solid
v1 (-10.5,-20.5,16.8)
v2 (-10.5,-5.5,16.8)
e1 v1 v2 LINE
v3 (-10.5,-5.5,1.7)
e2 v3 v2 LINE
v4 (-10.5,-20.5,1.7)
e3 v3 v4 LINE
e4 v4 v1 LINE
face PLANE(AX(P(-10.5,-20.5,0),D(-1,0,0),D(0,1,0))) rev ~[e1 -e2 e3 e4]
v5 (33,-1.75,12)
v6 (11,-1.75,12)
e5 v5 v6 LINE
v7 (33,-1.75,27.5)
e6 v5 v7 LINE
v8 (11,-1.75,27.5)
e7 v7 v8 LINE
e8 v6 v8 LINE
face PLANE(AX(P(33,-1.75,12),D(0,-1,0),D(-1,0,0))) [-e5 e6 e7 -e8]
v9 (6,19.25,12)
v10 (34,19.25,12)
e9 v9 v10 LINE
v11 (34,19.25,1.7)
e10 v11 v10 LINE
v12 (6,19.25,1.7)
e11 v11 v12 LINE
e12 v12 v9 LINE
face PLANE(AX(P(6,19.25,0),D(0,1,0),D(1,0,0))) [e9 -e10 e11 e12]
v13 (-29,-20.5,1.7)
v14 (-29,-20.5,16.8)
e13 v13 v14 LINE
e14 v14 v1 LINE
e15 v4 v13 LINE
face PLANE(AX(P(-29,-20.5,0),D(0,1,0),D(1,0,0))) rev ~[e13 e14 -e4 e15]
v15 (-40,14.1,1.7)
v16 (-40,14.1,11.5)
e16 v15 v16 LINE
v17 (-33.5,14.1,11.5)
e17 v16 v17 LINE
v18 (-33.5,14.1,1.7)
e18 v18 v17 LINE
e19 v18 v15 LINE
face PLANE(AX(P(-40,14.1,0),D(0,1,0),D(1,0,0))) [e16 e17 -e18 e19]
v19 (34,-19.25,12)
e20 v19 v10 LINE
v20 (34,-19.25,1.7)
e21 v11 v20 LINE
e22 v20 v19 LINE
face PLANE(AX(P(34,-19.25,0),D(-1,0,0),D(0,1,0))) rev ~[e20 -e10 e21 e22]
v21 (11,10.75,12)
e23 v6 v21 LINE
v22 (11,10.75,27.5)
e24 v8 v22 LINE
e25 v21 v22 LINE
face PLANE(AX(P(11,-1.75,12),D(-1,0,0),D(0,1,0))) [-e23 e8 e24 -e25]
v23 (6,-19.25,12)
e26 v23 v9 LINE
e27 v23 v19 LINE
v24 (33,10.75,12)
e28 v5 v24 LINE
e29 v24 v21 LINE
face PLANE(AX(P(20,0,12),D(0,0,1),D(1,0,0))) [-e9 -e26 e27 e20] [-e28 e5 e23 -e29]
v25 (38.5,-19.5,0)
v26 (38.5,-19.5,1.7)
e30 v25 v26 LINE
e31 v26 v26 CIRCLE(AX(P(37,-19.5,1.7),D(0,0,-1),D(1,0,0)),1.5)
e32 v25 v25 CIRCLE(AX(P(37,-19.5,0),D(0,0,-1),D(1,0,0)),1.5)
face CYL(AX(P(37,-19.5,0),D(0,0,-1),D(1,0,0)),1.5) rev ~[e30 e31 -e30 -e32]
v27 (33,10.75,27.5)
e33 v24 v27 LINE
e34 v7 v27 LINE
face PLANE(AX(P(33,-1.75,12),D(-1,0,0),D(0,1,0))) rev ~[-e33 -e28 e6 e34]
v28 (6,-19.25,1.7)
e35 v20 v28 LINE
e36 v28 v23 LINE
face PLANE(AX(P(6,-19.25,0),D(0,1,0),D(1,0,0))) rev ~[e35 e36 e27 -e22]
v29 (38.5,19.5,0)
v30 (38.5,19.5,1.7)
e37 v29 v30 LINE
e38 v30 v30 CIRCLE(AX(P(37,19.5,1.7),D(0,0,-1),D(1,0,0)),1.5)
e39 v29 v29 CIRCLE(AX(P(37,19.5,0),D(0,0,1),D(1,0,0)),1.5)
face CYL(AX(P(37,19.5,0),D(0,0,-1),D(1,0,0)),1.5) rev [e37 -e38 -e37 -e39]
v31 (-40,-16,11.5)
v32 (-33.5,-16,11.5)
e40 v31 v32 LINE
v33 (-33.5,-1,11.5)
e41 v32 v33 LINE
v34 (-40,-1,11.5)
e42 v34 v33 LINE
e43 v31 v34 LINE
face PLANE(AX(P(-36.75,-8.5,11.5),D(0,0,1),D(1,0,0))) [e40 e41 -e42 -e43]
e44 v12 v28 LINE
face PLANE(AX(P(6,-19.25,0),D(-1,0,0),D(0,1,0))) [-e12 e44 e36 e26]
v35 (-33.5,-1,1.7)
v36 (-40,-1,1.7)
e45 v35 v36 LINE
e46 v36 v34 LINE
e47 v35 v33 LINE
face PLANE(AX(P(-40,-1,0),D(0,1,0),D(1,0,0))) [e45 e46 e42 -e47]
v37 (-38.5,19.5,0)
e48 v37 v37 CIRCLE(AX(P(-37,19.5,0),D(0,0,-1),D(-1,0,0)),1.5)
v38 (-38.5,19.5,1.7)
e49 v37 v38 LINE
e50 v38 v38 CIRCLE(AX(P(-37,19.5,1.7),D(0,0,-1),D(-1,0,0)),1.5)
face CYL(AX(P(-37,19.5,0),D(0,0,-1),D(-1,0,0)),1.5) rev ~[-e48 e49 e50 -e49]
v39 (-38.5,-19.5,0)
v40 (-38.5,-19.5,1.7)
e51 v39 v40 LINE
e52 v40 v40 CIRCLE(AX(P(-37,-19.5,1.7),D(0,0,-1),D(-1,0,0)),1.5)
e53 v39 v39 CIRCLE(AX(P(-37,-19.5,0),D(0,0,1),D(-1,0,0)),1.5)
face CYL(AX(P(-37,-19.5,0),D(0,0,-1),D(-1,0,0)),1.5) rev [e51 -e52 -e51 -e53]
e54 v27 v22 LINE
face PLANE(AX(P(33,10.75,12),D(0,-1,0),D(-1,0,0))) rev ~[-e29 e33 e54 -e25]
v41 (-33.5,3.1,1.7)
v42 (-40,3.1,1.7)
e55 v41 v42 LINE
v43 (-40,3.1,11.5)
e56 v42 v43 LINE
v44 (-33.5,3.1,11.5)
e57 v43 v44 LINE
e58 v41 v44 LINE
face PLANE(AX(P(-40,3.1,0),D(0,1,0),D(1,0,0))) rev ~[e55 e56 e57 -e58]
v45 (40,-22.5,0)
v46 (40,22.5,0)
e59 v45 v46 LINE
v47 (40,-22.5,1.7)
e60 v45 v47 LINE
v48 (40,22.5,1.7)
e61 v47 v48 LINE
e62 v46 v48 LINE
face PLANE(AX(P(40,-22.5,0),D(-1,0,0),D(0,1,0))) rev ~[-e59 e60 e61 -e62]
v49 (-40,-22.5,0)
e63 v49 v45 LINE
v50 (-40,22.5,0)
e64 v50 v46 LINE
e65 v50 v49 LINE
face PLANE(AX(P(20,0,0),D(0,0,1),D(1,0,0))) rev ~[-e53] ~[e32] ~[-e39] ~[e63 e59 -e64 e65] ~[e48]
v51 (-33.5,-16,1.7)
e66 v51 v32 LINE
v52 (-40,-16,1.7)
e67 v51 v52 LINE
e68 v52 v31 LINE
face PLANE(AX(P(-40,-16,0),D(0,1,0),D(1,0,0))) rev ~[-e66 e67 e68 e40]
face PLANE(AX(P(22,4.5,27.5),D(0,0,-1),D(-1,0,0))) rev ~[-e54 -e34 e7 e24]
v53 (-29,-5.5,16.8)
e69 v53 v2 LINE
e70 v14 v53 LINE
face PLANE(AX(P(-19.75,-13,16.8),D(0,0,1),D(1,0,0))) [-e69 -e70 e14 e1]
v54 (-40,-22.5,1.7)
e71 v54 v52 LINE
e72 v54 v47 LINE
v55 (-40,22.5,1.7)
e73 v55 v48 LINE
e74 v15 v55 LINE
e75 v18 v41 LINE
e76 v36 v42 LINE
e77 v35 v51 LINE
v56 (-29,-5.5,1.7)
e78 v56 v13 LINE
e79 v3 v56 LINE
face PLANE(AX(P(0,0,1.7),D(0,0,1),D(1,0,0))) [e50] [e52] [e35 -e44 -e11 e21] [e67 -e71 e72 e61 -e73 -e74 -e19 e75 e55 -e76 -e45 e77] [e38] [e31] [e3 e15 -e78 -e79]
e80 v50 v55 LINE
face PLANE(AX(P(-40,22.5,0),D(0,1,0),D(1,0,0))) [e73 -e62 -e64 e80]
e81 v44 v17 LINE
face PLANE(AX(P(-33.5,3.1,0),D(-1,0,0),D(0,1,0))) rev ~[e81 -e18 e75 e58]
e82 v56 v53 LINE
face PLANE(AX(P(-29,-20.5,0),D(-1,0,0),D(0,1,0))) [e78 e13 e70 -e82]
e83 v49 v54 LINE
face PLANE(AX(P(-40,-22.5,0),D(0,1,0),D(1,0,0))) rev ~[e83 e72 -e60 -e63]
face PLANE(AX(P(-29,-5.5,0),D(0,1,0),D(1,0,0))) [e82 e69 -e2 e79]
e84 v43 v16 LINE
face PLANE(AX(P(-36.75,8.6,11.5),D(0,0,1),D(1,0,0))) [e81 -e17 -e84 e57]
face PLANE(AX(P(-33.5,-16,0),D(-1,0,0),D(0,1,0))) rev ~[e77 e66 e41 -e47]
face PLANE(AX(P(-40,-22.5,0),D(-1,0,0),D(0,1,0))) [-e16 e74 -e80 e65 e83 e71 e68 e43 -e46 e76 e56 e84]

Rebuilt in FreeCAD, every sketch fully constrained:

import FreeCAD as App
import Part
import Sketcher

V = App.Vector
Q = App.Units.Quantity

doc = App.newDocument("Part")
body = doc.addObject("PartDesign::Body", "Body")

# Sketch on XY plane
sketch1 = body.newObject("Sketcher::SketchObject", "Sketch")
sketch1.AttachmentSupport = (doc.getObject("XY_Plane"), [""])
sketch1.MapMode = "FlatFace"
sketch1.addGeometry(Part.LineSegment(V(-40, 22, 0), V(-40, -22, 0)), False)
sketch1.addGeometry(Part.LineSegment(V(-40, -22, 0), V(40, -22, 0)), False)
sketch1.addGeometry(Part.LineSegment(V(40, -22, 0), V(40, 22, 0)), False)
sketch1.addGeometry(Part.LineSegment(V(40, 22, 0), V(-40, 22, 0)), False)
sketch1.addConstraint(Sketcher.Constraint("Coincident", 0, 2, 1, 1))
sketch1.addConstraint(Sketcher.Constraint("Coincident", 1, 2, 2, 1))
sketch1.addConstraint(Sketcher.Constraint("Coincident", 2, 2, 3, 1))
sketch1.addConstraint(Sketcher.Constraint("Coincident", 3, 2, 0, 1))
sketch1.addConstraint(Sketcher.Constraint("Vertical", 0))
sketch1.addConstraint(Sketcher.Constraint("Horizontal", 1))
sketch1.addConstraint(Sketcher.Constraint("Vertical", 2))
sketch1.addConstraint(Sketcher.Constraint("Horizontal", 3))
sketch1.addConstraint(Sketcher.Constraint("Symmetric", 0, 2, 2, 2, -1, 1))
sketch1.addConstraint(Sketcher.Constraint("DistanceX", 1, 1, 1, 2, Q("80 mm")))
sketch1.addConstraint(Sketcher.Constraint("DistanceY", 0, 2, 0, 1, Q("45 mm")))
pad1 = body.newObject("PartDesign::Pad", "Pad")
pad1.Profile = sketch1
pad1.Length = 1.7

# Sketch on XY plane
sketch2 = body.newObject("Sketcher::SketchObject", "Sketch001")
sketch2.AttachmentSupport = (doc.getObject("XY_Plane"), [""])
sketch2.MapMode = "FlatFace"
sketch2.addGeometry(Part.LineSegment(V(-40, 14, 0), V(-40, 3, 0)), False)
sketch2.addGeometry(Part.LineSegment(V(-40, 3, 0), V(-34, 3, 0)), False)
sketch2.addGeometry(Part.LineSegment(V(-34, 3, 0), V(-34, 14, 0)), False)
sketch2.addGeometry(Part.LineSegment(V(-34, 14, 0), V(-40, 14, 0)), False)
sketch2.addConstraint(Sketcher.Constraint("Coincident", 0, 2, 1, 1))
sketch2.addConstraint(Sketcher.Constraint("Coincident", 1, 2, 2, 1))
sketch2.addConstraint(Sketcher.Constraint("Coincident", 2, 2, 3, 1))
sketch2.addConstraint(Sketcher.Constraint("Coincident", 3, 2, 0, 1))
sketch2.addConstraint(Sketcher.Constraint("Vertical", 0))
sketch2.addConstraint(Sketcher.Constraint("Horizontal", 1))
sketch2.addConstraint(Sketcher.Constraint("Vertical", 2))
sketch2.addConstraint(Sketcher.Constraint("Horizontal", 3))
sketch2.addConstraint(Sketcher.Constraint("DistanceY", 0, 2, 0, 1, Q("11 mm")))
sketch2.addConstraint(Sketcher.Constraint("DistanceX", 1, 1, 1, 2, Q("6.5 mm")))
sketch2.addConstraint(Sketcher.Constraint("DistanceX", 0, 2, -1, 1, Q("40 mm")))
sketch2.addConstraint(Sketcher.Constraint("DistanceY", -1, 1, 0, 2, Q("3.1 mm")))
pad2 = body.newObject("PartDesign::Pad", "Pad001")
pad2.Profile = sketch2
pad2.Length = 11.5

# Sketch on XY plane
sketch3 = body.newObject("Sketcher::SketchObject", "Sketch002")
sketch3.AttachmentSupport = (doc.getObject("XY_Plane"), [""])
sketch3.MapMode = "FlatFace"
sketch3.addGeometry(Part.LineSegment(V(-40, -1, 0), V(-40, -16, 0)), False)
sketch3.addGeometry(Part.LineSegment(V(-40, -16, 0), V(-34, -16, 0)), False)
sketch3.addGeometry(Part.LineSegment(V(-34, -16, 0), V(-34, -1, 0)), False)
sketch3.addGeometry(Part.LineSegment(V(-34, -1, 0), V(-40, -1, 0)), False)
sketch3.addConstraint(Sketcher.Constraint("Coincident", 0, 2, 1, 1))
sketch3.addConstraint(Sketcher.Constraint("Coincident", 1, 2, 2, 1))
sketch3.addConstraint(Sketcher.Constraint("Coincident", 2, 2, 3, 1))
sketch3.addConstraint(Sketcher.Constraint("Coincident", 3, 2, 0, 1))
sketch3.addConstraint(Sketcher.Constraint("Vertical", 0))
sketch3.addConstraint(Sketcher.Constraint("Horizontal", 1))
sketch3.addConstraint(Sketcher.Constraint("Vertical", 2))
sketch3.addConstraint(Sketcher.Constraint("Horizontal", 3))
sketch3.addConstraint(Sketcher.Constraint("DistanceY", 0, 2, 0, 1, Q("15 mm")))
sketch3.addConstraint(Sketcher.Constraint("DistanceX", 1, 1, 1, 2, Q("6.5 mm")))
sketch3.addConstraint(Sketcher.Constraint("DistanceX", 0, 2, -1, 1, Q("40 mm")))
sketch3.addConstraint(Sketcher.Constraint("DistanceY", 0, 2, -1, 1, Q("16 mm")))
pad3 = body.newObject("PartDesign::Pad", "Pad002")
pad3.Profile = sketch3
pad3.Length = 11.5

# Sketch on XY plane
sketch4 = body.newObject("Sketcher::SketchObject", "Sketch003")
sketch4.AttachmentSupport = (doc.getObject("XY_Plane"), [""])
sketch4.MapMode = "FlatFace"
sketch4.addGeometry(Part.LineSegment(V(-29, -6, 0), V(-29, -20, 0)), False)
sketch4.addGeometry(Part.LineSegment(V(-29, -20, 0), V(-10, -20, 0)), False)
sketch4.addGeometry(Part.LineSegment(V(-10, -20, 0), V(-10, -6, 0)), False)
sketch4.addGeometry(Part.LineSegment(V(-10, -6, 0), V(-29, -6, 0)), False)
sketch4.addConstraint(Sketcher.Constraint("Coincident", 0, 2, 1, 1))
sketch4.addConstraint(Sketcher.Constraint("Coincident", 1, 2, 2, 1))
sketch4.addConstraint(Sketcher.Constraint("Coincident", 2, 2, 3, 1))
sketch4.addConstraint(Sketcher.Constraint("Coincident", 3, 2, 0, 1))
sketch4.addConstraint(Sketcher.Constraint("Vertical", 0))
sketch4.addConstraint(Sketcher.Constraint("Horizontal", 1))
sketch4.addConstraint(Sketcher.Constraint("Vertical", 2))
sketch4.addConstraint(Sketcher.Constraint("Horizontal", 3))
sketch4.addConstraint(Sketcher.Constraint("DistanceY", 0, 2, 0, 1, Q("15 mm")))
sketch4.addConstraint(Sketcher.Constraint("DistanceX", 1, 1, 1, 2, Q("18.5 mm")))
sketch4.addConstraint(Sketcher.Constraint("DistanceX", 0, 2, -1, 1, Q("29 mm")))
sketch4.addConstraint(Sketcher.Constraint("DistanceY", 0, 2, -1, 1, Q("20.5 mm")))
pad4 = body.newObject("PartDesign::Pad", "Pad003")
pad4.Profile = sketch4
pad4.Length = 16.8

# Sketch on XY plane
sketch5 = body.newObject("Sketcher::SketchObject", "Sketch004")
sketch5.AttachmentSupport = (doc.getObject("XY_Plane"), [""])
sketch5.MapMode = "FlatFace"
sketch5.addGeometry(Part.Circle(V(37, 19.5, 0), V(0, 0, 1), 1.5), False)
sketch5.addConstraint(Sketcher.Constraint("Diameter", 0, Q("3 mm")))
sketch5.addConstraint(Sketcher.Constraint("DistanceX", -1, 1, 0, 3, Q("37 mm")))
sketch5.addConstraint(Sketcher.Constraint("DistanceY", -1, 1, 0, 3, Q("19.5 mm")))
pocket1 = body.newObject("PartDesign::Pocket", "Pocket")
pocket1.Profile = sketch5
pocket1.Length = 10
pocket1.Reversed = True

# Sketch on XY plane
sketch6 = body.newObject("Sketcher::SketchObject", "Sketch005")
sketch6.AttachmentSupport = (doc.getObject("XY_Plane"), [""])
sketch6.MapMode = "FlatFace"
sketch6.addGeometry(Part.Circle(V(-37, 19.5, 0), V(0, 0, 1), 1.5), False)
sketch6.addConstraint(Sketcher.Constraint("Diameter", 0, Q("3 mm")))
sketch6.addConstraint(Sketcher.Constraint("DistanceX", 0, 3, -1, 1, Q("37 mm")))
sketch6.addConstraint(Sketcher.Constraint("DistanceY", -1, 1, 0, 3, Q("19.5 mm")))
pocket2 = body.newObject("PartDesign::Pocket", "Pocket001")
pocket2.Profile = sketch6
pocket2.Length = 10
pocket2.Reversed = True
doc.recompute()

mirrored = body.newObject("PartDesign::Mirrored", "Mirrored")
mirrored.Originals = [pocket1, pocket2]
mirrored.MirrorPlane = (doc.getObject("XZ_Plane"), [""])
body.Tip = mirrored

# Sketch on XY plane
sketch7 = body.newObject("Sketcher::SketchObject", "Sketch006")
sketch7.AttachmentSupport = (doc.getObject("XY_Plane"), [""])
sketch7.MapMode = "FlatFace"
sketch7.addGeometry(Part.LineSegment(V(6, 19, 0), V(6, -19, 0)), False)
sketch7.addGeometry(Part.LineSegment(V(6, -19, 0), V(34, -19, 0)), False)
sketch7.addGeometry(Part.LineSegment(V(34, -19, 0), V(34, 19, 0)), False)
sketch7.addGeometry(Part.LineSegment(V(34, 19, 0), V(6, 19, 0)), False)
sketch7.addConstraint(Sketcher.Constraint("Coincident", 0, 2, 1, 1))
sketch7.addConstraint(Sketcher.Constraint("Coincident", 1, 2, 2, 1))
sketch7.addConstraint(Sketcher.Constraint("Coincident", 2, 2, 3, 1))
sketch7.addConstraint(Sketcher.Constraint("Coincident", 3, 2, 0, 1))
sketch7.addConstraint(Sketcher.Constraint("Vertical", 0))
sketch7.addConstraint(Sketcher.Constraint("Horizontal", 1))
sketch7.addConstraint(Sketcher.Constraint("Vertical", 2))
sketch7.addConstraint(Sketcher.Constraint("Horizontal", 3))
sketch7.addConstraint(Sketcher.Constraint("DistanceX", 1, 1, 1, 2, Q("28 mm")))
sketch7.addConstraint(Sketcher.Constraint("DistanceY", 0, 2, 0, 1, Q("38.5 mm")))
sketch7.addConstraint(Sketcher.Constraint("DistanceX", -1, 1, 0, 2, Q("6 mm")))
sketch7.addConstraint(Sketcher.Constraint("DistanceY", 0, 2, -1, 1, Q("19.25 mm")))
pad5 = body.newObject("PartDesign::Pad", "Pad004")
pad5.Profile = sketch7
pad5.Length = 12

# Sketch on XY plane
sketch8 = body.newObject("Sketcher::SketchObject", "Sketch007")
sketch8.AttachmentSupport = (doc.getObject("XY_Plane"), [""])
sketch8.MapMode = "FlatFace"
sketch8.AttachmentOffset = App.Placement(V(0, 0, 12), App.Rotation())
sketch8.addGeometry(Part.LineSegment(V(33, 11, 0), V(33, -2, 0)), False)
sketch8.addGeometry(Part.LineSegment(V(33, -2, 0), V(11, -2, 0)), False)
sketch8.addGeometry(Part.LineSegment(V(11, -2, 0), V(11, 11, 0)), False)
sketch8.addGeometry(Part.LineSegment(V(11, 11, 0), V(33, 11, 0)), False)
sketch8.addConstraint(Sketcher.Constraint("Coincident", 0, 2, 1, 1))
sketch8.addConstraint(Sketcher.Constraint("Coincident", 1, 2, 2, 1))
sketch8.addConstraint(Sketcher.Constraint("Coincident", 2, 2, 3, 1))
sketch8.addConstraint(Sketcher.Constraint("Coincident", 3, 2, 0, 1))
sketch8.addConstraint(Sketcher.Constraint("Vertical", 0))
sketch8.addConstraint(Sketcher.Constraint("Horizontal", 1))
sketch8.addConstraint(Sketcher.Constraint("Vertical", 2))
sketch8.addConstraint(Sketcher.Constraint("Horizontal", 3))
sketch8.addConstraint(Sketcher.Constraint("DistanceX", 1, 2, 1, 1, Q("22 mm")))
sketch8.addConstraint(Sketcher.Constraint("DistanceY", 0, 2, 0, 1, Q("12.5 mm")))
sketch8.addConstraint(Sketcher.Constraint("DistanceX", -1, 1, 0, 2, Q("33 mm")))
sketch8.addConstraint(Sketcher.Constraint("DistanceY", 0, 2, -1, 1, Q("1.75 mm")))
pad6 = body.newObject("PartDesign::Pad", "Pad005")
pad6.Profile = sketch8
pad6.Length = 15.5

doc.recompute()
